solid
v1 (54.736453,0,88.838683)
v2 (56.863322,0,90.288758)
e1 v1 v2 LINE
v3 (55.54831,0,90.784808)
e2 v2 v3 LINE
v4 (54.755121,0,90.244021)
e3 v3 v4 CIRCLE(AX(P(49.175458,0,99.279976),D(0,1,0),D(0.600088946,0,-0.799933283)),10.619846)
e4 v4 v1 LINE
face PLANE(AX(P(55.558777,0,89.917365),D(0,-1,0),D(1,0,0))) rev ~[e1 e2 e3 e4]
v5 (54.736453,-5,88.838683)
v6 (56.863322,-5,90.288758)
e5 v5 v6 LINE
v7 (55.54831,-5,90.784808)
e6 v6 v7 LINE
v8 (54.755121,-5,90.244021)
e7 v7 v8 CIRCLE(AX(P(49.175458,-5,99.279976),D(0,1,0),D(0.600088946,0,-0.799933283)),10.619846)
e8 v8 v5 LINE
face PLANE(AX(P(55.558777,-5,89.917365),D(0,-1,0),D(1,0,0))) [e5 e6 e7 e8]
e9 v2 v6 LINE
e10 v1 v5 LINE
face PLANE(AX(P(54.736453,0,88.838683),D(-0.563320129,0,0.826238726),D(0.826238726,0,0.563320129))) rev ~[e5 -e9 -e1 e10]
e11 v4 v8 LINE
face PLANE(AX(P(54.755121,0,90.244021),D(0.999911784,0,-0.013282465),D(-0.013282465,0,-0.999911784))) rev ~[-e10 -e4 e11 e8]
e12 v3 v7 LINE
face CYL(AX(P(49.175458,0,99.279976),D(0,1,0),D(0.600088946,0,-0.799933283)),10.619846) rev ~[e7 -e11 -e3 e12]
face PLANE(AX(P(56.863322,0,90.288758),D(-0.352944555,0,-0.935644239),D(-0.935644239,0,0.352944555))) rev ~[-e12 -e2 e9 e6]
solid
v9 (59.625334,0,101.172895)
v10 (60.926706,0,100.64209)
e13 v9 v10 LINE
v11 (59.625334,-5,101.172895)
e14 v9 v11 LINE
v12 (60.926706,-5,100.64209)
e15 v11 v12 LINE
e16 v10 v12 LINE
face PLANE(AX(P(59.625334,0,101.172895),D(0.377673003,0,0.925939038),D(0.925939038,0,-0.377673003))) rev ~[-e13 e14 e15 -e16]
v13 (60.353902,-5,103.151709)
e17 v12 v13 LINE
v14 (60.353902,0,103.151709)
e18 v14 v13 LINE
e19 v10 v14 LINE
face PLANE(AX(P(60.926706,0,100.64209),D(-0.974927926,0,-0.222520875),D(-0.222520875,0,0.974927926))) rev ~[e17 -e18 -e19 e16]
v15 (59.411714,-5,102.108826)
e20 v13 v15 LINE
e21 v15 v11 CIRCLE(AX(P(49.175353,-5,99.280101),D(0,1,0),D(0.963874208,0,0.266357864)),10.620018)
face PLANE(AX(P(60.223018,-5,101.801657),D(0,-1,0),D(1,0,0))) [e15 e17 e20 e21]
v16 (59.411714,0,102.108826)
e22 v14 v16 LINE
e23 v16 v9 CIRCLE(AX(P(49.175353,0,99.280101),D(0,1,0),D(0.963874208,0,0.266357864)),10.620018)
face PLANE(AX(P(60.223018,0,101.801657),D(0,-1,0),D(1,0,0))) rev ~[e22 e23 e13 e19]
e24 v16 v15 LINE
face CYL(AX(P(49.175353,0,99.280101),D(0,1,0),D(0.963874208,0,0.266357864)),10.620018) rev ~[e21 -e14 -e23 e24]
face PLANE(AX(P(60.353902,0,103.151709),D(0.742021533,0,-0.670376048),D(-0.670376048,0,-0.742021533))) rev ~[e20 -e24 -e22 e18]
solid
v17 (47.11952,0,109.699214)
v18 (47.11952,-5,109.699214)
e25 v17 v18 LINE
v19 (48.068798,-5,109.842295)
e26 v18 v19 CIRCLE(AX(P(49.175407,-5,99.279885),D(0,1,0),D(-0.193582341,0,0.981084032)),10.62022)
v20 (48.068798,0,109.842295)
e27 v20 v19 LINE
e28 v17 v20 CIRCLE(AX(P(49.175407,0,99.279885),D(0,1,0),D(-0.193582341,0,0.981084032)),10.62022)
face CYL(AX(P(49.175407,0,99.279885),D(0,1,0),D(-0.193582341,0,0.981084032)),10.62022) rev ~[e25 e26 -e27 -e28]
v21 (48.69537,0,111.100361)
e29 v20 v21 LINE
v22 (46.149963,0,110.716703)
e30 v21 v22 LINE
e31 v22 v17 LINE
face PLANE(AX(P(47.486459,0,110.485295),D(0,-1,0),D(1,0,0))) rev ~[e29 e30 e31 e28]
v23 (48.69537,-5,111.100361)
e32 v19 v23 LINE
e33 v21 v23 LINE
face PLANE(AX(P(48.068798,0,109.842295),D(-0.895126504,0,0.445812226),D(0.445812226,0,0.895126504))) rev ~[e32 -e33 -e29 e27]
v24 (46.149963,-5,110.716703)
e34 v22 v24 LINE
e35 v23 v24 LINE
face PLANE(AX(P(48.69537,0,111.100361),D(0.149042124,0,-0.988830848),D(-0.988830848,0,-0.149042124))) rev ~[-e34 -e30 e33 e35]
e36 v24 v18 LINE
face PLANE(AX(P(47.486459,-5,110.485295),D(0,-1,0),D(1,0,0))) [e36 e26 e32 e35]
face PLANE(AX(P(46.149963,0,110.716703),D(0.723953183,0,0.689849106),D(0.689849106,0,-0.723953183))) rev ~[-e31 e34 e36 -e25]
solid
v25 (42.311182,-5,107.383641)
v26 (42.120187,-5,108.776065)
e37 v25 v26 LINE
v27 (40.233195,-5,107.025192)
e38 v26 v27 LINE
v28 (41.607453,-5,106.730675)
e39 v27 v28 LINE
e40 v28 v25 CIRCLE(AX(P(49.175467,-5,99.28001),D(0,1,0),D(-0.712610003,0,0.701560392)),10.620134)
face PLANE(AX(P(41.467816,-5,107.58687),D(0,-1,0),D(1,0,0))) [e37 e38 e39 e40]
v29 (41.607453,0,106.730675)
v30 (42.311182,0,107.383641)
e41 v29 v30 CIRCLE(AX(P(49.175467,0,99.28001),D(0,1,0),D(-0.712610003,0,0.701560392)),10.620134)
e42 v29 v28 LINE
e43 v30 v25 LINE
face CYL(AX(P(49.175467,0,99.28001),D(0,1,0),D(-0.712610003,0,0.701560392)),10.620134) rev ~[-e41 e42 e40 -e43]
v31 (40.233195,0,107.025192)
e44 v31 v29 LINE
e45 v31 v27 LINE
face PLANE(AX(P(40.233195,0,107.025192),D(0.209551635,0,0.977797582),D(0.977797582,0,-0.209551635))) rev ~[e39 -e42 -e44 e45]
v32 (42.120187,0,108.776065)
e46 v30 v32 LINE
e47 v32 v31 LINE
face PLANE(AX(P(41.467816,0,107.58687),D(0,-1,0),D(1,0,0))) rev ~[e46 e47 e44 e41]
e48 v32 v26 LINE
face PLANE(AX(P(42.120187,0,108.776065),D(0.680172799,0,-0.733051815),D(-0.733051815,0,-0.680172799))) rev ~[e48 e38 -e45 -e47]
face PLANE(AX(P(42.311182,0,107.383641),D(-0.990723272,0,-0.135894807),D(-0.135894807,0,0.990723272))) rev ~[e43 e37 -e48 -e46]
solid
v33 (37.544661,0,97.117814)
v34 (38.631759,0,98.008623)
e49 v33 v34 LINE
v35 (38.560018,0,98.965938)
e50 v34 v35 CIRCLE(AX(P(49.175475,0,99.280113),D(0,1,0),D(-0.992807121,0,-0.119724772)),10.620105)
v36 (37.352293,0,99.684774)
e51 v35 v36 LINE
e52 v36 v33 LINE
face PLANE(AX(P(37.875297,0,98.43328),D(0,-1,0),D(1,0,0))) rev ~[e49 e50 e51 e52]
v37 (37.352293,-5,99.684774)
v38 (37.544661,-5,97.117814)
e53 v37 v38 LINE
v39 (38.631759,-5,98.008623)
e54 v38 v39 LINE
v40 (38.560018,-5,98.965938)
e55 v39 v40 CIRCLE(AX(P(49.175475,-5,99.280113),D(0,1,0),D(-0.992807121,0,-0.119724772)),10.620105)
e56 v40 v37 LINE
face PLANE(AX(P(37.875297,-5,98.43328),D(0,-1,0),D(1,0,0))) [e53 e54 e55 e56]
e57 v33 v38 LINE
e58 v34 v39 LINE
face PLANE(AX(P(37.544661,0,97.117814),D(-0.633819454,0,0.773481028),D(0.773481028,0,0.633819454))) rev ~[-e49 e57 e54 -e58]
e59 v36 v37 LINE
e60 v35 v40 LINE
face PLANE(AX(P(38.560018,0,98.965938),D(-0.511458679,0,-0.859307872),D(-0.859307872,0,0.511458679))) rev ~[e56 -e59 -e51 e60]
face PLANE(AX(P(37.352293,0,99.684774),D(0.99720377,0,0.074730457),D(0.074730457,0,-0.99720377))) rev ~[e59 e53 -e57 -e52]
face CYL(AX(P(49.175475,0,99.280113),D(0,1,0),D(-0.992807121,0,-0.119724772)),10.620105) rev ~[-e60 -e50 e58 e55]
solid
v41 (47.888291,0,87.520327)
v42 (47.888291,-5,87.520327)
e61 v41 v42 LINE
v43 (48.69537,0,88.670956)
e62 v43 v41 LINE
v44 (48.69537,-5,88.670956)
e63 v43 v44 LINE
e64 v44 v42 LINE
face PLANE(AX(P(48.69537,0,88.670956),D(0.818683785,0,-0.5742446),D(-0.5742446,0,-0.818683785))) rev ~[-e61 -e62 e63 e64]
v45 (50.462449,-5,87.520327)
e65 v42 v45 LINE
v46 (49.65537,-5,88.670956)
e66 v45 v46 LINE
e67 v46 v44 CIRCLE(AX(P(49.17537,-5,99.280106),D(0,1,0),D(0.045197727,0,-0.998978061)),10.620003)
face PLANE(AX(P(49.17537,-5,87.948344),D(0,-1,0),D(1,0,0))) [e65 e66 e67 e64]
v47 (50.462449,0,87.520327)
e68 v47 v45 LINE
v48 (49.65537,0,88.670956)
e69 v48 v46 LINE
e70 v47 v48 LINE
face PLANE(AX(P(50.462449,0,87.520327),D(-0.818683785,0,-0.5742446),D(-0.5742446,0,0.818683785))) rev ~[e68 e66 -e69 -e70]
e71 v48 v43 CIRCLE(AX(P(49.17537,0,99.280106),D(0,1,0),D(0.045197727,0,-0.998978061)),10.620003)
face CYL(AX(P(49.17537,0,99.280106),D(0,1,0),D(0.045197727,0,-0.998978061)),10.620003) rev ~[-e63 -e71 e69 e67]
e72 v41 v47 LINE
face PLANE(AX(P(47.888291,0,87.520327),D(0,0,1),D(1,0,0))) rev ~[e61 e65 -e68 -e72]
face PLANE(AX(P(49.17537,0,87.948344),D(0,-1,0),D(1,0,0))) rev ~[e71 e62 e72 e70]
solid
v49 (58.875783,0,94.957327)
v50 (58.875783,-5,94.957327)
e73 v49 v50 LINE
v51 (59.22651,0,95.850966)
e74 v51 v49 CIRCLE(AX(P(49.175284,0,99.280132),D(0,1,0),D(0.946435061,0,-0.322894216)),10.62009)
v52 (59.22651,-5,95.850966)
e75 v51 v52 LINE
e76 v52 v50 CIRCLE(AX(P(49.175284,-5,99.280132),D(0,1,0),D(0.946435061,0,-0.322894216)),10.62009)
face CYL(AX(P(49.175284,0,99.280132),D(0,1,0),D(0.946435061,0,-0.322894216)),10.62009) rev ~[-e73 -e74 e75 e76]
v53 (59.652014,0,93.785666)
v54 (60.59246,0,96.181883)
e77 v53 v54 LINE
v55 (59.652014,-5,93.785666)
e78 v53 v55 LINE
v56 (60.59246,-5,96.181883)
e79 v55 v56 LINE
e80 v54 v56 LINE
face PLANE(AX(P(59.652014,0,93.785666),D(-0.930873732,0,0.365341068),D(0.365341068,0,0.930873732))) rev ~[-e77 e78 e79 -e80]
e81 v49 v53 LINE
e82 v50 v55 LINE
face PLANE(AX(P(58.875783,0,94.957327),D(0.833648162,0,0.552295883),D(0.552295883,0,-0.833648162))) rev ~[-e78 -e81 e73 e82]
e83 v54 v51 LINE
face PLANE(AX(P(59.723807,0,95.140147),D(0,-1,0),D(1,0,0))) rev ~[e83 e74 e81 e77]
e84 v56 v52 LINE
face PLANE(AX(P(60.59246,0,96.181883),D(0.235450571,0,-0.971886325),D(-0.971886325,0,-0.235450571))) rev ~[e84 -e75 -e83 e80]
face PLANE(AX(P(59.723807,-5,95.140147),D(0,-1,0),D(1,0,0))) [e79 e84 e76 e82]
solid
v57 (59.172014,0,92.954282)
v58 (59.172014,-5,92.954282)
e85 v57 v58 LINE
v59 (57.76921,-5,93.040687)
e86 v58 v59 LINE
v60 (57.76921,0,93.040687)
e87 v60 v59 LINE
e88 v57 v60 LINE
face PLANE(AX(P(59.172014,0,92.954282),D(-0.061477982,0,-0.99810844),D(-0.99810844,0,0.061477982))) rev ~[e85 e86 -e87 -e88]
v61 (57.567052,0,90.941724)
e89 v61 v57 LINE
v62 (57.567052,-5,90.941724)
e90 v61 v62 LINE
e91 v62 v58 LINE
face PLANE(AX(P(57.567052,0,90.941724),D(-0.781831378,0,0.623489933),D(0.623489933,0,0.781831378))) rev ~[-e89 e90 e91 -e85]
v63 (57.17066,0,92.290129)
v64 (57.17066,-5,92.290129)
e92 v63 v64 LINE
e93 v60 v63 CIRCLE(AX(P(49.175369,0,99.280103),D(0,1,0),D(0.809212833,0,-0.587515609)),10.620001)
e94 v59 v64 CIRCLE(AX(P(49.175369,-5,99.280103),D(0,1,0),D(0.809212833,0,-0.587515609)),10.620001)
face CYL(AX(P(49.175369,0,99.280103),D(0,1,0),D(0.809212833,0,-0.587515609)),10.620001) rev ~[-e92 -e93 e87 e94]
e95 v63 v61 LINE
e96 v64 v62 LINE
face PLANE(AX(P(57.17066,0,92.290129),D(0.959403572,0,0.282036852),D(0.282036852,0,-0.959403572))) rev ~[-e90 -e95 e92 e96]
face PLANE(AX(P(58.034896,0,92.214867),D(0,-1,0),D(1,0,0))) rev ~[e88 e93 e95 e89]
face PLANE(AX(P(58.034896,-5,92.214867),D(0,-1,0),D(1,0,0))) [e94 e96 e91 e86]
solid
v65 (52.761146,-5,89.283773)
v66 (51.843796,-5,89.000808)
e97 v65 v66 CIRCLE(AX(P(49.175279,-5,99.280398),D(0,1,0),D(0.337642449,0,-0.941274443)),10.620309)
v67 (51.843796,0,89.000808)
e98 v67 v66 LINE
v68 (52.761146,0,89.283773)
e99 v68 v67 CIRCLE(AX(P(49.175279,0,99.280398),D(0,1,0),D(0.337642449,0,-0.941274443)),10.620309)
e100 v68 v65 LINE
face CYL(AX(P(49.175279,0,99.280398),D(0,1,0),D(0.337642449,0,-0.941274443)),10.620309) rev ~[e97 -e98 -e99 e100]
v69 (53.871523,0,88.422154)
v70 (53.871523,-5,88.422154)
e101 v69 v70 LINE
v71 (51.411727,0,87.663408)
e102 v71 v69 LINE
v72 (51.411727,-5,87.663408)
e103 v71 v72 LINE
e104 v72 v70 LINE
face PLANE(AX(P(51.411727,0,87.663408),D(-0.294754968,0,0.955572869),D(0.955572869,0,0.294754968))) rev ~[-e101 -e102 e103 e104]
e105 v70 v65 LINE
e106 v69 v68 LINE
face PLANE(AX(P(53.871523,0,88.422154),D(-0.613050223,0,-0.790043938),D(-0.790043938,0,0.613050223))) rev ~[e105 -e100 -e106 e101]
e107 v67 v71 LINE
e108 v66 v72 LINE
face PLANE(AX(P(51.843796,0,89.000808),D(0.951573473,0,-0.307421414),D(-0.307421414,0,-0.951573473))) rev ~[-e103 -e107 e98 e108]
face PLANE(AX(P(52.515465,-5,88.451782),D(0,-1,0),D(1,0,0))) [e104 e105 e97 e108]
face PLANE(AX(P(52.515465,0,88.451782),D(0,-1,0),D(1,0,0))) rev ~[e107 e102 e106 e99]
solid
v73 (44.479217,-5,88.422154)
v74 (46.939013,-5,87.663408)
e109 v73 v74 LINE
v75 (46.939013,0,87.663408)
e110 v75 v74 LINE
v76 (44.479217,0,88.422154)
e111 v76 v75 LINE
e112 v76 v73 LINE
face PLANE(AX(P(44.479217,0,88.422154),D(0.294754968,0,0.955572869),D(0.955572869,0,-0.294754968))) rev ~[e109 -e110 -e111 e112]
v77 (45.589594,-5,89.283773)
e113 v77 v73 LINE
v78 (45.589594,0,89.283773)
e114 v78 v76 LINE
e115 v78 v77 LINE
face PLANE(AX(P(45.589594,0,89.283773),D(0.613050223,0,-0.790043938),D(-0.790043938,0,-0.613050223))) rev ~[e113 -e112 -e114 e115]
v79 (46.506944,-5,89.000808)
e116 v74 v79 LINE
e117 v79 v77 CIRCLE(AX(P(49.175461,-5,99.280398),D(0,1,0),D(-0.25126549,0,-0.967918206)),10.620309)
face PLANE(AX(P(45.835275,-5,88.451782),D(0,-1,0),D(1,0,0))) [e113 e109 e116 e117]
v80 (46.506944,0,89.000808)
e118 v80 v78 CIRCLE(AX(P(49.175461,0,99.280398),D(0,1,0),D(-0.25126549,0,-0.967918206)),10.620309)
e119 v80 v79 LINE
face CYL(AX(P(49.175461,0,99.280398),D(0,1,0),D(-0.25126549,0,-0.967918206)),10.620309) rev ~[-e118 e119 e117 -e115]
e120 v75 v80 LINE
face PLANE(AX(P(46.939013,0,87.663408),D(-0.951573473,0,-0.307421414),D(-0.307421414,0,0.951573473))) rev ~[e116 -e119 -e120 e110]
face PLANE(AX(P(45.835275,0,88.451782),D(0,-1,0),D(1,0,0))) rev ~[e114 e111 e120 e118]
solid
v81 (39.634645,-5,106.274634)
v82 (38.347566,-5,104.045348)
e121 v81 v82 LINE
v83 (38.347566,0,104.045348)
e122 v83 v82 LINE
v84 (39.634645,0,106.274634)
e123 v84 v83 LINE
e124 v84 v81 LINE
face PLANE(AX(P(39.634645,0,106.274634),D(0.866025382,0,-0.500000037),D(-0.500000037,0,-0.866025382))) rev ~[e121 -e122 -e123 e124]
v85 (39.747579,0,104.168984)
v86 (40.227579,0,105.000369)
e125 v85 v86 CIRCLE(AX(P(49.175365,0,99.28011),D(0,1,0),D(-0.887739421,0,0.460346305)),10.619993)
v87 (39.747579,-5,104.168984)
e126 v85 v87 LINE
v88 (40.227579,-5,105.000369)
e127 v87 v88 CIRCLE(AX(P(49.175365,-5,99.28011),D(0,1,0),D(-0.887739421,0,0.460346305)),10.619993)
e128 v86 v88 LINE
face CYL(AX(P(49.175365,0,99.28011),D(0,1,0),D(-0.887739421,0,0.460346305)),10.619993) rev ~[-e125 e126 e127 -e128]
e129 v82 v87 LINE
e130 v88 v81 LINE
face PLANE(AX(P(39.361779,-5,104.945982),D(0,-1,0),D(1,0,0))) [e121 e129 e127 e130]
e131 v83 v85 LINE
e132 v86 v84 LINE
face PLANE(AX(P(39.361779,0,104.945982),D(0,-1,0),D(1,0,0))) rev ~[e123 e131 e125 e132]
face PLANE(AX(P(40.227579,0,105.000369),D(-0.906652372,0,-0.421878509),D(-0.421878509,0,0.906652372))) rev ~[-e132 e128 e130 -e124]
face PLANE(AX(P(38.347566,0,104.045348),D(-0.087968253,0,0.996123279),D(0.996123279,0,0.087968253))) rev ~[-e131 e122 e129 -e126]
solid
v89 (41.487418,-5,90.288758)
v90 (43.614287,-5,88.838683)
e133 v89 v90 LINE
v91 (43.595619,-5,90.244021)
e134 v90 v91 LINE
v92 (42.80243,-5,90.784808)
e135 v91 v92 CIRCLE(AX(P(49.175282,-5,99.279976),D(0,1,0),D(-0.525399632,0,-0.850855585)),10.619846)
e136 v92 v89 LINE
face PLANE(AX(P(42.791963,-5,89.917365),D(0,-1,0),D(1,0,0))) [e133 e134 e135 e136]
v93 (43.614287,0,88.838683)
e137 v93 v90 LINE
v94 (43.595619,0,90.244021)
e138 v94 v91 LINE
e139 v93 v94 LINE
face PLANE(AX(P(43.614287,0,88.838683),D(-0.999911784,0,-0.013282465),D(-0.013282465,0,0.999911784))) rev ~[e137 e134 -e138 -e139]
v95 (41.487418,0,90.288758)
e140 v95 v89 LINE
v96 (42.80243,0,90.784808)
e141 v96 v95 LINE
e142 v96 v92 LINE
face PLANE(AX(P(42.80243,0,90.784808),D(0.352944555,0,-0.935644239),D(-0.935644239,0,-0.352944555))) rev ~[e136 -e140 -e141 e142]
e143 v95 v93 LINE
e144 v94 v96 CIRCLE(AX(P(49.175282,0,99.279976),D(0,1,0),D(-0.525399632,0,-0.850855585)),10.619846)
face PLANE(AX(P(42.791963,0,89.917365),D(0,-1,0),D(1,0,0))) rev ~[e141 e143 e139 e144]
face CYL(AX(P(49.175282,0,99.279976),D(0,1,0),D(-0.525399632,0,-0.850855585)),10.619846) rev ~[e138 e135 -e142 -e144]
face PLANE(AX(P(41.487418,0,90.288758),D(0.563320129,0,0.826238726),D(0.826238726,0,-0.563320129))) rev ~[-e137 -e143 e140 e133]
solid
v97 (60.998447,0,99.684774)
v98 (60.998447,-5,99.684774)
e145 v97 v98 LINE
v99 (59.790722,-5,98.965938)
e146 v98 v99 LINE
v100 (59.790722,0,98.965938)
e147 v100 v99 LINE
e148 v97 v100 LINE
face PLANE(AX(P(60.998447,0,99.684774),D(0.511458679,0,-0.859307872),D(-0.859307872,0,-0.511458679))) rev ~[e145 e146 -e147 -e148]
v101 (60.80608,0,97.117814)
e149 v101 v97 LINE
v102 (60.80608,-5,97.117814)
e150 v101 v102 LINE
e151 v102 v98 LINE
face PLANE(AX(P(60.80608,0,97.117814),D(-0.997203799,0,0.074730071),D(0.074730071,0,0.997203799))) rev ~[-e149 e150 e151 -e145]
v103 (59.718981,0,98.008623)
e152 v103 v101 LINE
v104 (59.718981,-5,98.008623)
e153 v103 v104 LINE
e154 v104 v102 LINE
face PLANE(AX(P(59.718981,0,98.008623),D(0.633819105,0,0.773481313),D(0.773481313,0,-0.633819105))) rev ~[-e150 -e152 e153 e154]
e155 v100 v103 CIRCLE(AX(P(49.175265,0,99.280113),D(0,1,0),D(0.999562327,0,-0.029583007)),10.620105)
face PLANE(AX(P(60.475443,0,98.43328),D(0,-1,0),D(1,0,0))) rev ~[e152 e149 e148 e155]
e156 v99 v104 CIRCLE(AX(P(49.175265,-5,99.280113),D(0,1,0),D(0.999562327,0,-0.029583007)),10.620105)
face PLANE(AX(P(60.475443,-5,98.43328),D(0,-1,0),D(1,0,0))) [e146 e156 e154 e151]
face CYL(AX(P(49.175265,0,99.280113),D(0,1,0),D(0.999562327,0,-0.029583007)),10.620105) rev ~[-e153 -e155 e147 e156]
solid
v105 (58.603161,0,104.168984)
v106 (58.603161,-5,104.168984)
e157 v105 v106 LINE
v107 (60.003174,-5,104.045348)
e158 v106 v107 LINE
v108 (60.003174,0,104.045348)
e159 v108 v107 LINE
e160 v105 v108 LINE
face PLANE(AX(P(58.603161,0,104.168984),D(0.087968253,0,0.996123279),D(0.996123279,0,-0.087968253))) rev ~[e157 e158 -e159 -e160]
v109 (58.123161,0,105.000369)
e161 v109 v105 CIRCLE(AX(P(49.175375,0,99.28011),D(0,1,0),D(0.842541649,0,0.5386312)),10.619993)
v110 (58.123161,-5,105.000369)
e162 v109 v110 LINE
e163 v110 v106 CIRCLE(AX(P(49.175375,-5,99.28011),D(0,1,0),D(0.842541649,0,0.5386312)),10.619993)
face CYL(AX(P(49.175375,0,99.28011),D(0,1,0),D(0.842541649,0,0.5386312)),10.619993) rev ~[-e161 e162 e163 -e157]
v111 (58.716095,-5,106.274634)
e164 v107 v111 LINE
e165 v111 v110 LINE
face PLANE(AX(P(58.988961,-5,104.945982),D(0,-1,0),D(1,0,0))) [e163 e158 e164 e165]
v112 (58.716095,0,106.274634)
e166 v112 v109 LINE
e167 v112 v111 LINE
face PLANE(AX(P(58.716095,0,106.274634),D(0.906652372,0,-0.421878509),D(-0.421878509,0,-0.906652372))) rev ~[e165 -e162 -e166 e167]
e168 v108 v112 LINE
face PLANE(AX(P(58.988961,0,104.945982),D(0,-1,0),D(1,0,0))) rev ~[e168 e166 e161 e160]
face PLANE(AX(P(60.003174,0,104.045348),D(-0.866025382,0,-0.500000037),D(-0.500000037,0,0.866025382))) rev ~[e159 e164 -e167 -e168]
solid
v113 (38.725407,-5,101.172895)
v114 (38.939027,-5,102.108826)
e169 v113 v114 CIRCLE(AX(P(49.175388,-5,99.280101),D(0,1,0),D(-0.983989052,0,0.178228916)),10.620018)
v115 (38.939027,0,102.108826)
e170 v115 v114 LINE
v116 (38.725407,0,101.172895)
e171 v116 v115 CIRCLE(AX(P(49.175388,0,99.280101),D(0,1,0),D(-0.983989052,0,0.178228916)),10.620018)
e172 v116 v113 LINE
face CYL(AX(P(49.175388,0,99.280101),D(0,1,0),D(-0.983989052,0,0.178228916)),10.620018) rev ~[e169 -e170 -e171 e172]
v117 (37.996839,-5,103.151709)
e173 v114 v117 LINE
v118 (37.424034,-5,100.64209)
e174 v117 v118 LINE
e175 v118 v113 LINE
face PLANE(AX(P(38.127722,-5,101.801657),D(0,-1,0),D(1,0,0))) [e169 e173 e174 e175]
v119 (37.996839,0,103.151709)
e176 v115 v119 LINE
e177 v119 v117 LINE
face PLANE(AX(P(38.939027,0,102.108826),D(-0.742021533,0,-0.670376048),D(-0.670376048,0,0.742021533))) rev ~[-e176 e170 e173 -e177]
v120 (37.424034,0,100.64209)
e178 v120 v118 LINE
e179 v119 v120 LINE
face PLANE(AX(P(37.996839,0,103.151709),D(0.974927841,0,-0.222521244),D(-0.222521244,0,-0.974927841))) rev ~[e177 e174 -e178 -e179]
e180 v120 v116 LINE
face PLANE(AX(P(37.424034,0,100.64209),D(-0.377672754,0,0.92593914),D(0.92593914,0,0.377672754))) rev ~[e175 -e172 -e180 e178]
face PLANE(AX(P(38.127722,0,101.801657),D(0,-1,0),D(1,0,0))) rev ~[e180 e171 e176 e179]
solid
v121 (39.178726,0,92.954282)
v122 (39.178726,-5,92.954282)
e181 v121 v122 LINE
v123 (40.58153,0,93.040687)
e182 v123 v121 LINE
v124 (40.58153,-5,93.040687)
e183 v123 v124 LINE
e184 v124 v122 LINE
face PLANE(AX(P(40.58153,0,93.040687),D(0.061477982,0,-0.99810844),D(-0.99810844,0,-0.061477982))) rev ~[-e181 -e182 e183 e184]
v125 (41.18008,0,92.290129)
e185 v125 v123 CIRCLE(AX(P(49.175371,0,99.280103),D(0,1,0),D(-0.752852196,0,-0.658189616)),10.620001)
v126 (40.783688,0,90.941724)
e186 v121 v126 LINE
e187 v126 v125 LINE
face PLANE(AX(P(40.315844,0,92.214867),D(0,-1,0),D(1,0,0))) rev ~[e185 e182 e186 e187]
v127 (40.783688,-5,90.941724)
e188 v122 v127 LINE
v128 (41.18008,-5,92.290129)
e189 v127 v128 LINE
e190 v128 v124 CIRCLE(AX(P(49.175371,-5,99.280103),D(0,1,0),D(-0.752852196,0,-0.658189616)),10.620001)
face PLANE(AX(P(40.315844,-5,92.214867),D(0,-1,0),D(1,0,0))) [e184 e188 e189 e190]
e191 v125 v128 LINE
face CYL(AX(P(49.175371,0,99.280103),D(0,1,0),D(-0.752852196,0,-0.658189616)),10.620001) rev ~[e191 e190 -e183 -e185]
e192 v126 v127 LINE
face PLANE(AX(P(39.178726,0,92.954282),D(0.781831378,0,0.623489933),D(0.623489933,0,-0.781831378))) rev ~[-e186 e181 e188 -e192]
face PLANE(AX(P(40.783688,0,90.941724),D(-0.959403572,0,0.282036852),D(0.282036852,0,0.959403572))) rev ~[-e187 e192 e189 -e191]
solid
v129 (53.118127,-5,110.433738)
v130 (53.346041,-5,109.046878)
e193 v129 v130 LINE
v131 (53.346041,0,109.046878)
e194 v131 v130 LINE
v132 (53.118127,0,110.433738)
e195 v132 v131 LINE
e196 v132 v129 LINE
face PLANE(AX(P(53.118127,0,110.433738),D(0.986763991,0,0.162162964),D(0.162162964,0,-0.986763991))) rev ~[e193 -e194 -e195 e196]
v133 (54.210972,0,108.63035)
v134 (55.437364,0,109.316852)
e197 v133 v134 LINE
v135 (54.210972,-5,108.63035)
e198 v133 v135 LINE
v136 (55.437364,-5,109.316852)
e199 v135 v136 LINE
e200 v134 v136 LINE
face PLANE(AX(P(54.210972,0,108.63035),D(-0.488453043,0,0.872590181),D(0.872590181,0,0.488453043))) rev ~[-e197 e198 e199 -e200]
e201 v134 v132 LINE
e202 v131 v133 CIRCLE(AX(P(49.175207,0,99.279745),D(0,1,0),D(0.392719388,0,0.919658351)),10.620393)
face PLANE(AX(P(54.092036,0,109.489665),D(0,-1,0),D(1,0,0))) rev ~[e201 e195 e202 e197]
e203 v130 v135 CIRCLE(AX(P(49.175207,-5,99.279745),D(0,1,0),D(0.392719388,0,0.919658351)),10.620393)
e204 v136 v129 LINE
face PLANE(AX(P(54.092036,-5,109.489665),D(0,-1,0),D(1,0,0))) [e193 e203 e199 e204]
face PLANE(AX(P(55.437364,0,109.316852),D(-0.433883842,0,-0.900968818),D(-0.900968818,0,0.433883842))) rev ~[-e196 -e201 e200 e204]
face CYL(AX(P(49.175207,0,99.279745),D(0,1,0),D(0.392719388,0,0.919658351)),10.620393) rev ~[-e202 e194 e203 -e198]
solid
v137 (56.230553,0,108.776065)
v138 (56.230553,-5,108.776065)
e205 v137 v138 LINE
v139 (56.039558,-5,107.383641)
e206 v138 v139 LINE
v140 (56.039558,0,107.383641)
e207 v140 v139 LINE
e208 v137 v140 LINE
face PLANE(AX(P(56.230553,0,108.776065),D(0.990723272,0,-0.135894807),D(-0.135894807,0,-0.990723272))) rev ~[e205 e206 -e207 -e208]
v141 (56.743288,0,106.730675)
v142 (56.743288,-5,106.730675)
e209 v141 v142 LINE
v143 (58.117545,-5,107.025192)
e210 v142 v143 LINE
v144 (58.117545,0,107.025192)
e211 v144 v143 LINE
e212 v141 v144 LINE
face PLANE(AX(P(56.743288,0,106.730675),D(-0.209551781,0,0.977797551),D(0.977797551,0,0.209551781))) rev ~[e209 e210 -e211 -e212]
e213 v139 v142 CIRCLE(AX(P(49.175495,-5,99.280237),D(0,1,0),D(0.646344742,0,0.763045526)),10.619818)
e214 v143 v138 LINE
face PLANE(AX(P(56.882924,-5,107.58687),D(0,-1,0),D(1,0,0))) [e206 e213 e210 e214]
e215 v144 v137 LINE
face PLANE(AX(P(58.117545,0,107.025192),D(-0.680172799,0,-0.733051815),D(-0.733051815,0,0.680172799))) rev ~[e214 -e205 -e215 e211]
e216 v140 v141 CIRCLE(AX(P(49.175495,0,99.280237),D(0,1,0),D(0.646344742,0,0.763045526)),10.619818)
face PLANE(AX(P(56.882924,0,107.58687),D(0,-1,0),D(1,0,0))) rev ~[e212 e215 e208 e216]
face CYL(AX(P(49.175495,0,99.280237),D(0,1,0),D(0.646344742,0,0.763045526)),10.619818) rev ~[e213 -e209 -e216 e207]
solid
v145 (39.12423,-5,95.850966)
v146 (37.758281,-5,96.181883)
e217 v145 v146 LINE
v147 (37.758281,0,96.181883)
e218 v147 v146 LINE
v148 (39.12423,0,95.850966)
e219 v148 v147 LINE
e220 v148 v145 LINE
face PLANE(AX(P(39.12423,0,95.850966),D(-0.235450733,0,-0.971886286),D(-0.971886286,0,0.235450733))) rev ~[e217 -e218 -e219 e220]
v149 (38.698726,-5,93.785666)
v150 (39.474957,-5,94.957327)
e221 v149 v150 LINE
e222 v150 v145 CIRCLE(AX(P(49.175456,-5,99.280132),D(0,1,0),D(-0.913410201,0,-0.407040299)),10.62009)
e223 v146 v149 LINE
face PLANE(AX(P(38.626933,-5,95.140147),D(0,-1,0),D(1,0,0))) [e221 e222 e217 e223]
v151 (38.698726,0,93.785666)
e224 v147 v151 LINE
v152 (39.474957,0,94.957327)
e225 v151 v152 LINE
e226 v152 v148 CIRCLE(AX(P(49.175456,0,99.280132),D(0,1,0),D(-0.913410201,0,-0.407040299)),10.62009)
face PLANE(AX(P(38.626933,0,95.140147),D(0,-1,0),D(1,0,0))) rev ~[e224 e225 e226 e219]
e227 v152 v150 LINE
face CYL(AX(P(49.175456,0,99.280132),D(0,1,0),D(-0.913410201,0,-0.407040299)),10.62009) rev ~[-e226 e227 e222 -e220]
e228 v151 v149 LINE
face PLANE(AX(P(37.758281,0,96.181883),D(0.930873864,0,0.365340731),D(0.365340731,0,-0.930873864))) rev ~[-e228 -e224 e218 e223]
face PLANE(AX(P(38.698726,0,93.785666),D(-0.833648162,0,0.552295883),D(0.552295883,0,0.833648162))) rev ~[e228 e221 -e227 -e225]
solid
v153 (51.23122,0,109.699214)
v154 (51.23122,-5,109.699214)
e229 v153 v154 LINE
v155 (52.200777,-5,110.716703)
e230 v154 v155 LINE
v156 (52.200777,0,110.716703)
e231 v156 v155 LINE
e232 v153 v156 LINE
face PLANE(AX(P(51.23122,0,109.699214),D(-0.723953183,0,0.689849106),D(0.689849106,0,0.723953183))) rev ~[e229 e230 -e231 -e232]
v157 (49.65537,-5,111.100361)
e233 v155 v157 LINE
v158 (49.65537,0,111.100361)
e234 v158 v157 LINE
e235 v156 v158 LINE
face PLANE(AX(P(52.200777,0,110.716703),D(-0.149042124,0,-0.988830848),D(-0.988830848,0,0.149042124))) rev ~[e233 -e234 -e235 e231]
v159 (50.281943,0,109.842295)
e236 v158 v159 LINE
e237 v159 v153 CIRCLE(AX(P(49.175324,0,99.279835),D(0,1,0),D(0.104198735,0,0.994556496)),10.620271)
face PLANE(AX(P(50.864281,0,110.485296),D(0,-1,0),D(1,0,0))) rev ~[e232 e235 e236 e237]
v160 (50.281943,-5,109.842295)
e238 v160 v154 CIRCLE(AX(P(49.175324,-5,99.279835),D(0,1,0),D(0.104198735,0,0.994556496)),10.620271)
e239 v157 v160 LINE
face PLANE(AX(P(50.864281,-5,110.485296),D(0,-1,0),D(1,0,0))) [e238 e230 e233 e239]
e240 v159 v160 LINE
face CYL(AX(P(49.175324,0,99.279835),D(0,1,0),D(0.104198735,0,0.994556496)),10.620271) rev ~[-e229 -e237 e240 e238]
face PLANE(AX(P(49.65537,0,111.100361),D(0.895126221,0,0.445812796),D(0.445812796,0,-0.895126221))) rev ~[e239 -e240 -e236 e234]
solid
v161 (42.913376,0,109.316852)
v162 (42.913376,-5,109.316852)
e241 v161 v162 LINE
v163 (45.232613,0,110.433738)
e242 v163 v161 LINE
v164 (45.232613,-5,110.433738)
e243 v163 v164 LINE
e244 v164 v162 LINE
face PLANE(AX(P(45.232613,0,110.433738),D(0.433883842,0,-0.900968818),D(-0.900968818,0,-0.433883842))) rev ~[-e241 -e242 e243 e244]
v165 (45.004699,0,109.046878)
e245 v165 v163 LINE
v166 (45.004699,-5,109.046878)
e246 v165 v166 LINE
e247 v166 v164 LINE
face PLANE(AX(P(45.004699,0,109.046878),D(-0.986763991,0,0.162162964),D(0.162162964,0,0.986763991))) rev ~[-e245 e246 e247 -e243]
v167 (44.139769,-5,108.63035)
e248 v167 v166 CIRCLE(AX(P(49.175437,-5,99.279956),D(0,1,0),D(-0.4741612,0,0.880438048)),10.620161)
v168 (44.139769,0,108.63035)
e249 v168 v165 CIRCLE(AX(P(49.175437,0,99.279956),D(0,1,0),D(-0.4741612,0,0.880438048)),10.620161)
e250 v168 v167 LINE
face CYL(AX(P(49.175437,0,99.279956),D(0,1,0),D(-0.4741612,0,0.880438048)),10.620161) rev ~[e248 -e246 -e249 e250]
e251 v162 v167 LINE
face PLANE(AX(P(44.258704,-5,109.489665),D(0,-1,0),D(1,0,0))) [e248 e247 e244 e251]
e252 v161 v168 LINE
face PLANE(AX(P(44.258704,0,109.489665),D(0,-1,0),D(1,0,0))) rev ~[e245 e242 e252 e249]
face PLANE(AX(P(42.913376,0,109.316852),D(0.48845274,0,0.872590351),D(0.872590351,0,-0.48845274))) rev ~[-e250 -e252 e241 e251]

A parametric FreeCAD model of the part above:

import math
import FreeCAD as App
import Part
import Sketcher
from FreeCAD import Vector

doc = App.newDocument("Part")
body = doc.addObject("PartDesign::Body", "Body")
body.AllowCompound = True

sketch1 = doc.addObject("Sketcher::SketchObject", "Sketch")
body.addObject(sketch1)
sketch1.AttachmentSupport = (doc.XZ_Plane, [""])
sketch1.MapMode = "FlatFace"
sketch1.addGeometry([
    Part.LineSegment(Vector(44.479217, 88.422154, 0), Vector(46.939013, 87.663408, 0)),
    Part.LineSegment(Vector(46.939013, 87.663408, 0), Vector(46.506944, 89.000808, 0)),
    Part.ArcOfCircle(Part.Circle(Vector(49.175461, 99.280398, 0), Vector(0, 0, 1), 10.620309), math.radians(-109.733304), math.radians(-104.55241)),
    Part.LineSegment(Vector(45.589594, 89.283773, 0), Vector(44.479217, 88.422154, 0)),
    Part.LineSegment(Vector(41.487418, 90.288758, 0), Vector(43.614287, 88.838683, 0)),
    Part.LineSegment(Vector(43.614287, 88.838683, 0), Vector(43.595619, 90.244021, 0)),
    Part.ArcOfCircle(Part.Circle(Vector(49.175282, 99.279976, 0), Vector(0, 0, 1), 10.619846), math.radians(-126.876268), math.radians(-121.69515)),
    Part.LineSegment(Vector(42.80243, 90.784808, 0), Vector(41.487418, 90.288758, 0)),
    Part.LineSegment(Vector(39.178726, 92.954282, 0), Vector(40.783688, 90.941724, 0)),
    Part.LineSegment(Vector(40.783688, 90.941724, 0), Vector(41.18008, 92.290129, 0)),
    Part.ArcOfCircle(Part.Circle(Vector(49.175371, 99.280103, 0), Vector(0, 0, 1), 10.620001), math.radians(-144.019094), math.radians(-138.838052)),
    Part.LineSegment(Vector(40.58153, 93.040687, 0), Vector(39.178726, 92.954282, 0)),
    Part.LineSegment(Vector(37.758281, 96.181883, 0), Vector(38.698726, 93.785666, 0)),
    Part.LineSegment(Vector(38.698726, 93.785666, 0), Vector(39.474957, 94.957327, 0)),
    Part.ArcOfCircle(Part.Circle(Vector(49.175456, 99.280132, 0), Vector(0, 0, 1), 10.62009), math.radians(-161.161955), math.radians(-155.980954)),
    Part.LineSegment(Vector(39.12423, 95.850966, 0), Vector(37.758281, 96.181883, 0)),
    Part.LineSegment(Vector(37.352293, 99.684774, 0), Vector(37.544661, 97.117814, 0)),
    Part.LineSegment(Vector(37.544661, 97.117814, 0), Vector(38.631759, 98.008623, 0)),
    Part.ArcOfCircle(Part.Circle(Vector(49.175475, 99.280113, 0), Vector(0, 0, 1), 10.620105), math.radians(-178.304771), math.radians(-173.123781)),
    Part.LineSegment(Vector(38.560018, 98.965938, 0), Vector(37.352293, 99.684774, 0)),
    Part.LineSegment(Vector(38.939027, 102.108826, 0), Vector(37.996839, 103.151709, 0)),
    Part.LineSegment(Vector(37.996839, 103.151709, 0), Vector(37.424034, 100.64209, 0)),
    Part.LineSegment(Vector(37.424034, 100.64209, 0), Vector(38.725407, 101.172895, 0)),
    Part.ArcOfCircle(Part.Circle(Vector(49.175388, 99.280101, 0), Vector(0, 0, 1), 10.620018), math.radians(164.552347), math.radians(169.733384)),
    Part.LineSegment(Vector(40.227579, 105.000369, 0), Vector(39.634645, 106.274634, 0)),
    Part.LineSegment(Vector(39.634645, 106.274634, 0), Vector(38.347566, 104.045348, 0)),
    Part.LineSegment(Vector(38.347566, 104.045348, 0), Vector(39.747579, 104.168984, 0)),
    Part.ArcOfCircle(Part.Circle(Vector(49.175365, 99.28011, 0), Vector(0, 0, 1), 10.619993), math.radians(147.409493), math.radians(152.590544)),
    Part.LineSegment(Vector(47.888291, 87.520327, 0), Vector(50.462449, 87.520327, 0)),
    Part.LineSegment(Vector(50.462449, 87.520327, 0), Vector(49.65537, 88.670956, 0)),
    Part.ArcOfCircle(Part.Circle(Vector(49.17537, 99.280106, 0), Vector(0, 0, 1), 10.620003), math.radians(-92.590522), math.radians(-87.409478)),
    Part.LineSegment(Vector(48.69537, 88.670956, 0), Vector(47.888291, 87.520327, 0)),
    Part.LineSegment(Vector(51.411727, 87.663408, 0), Vector(53.871523, 88.422154, 0)),
    Part.LineSegment(Vector(53.871523, 88.422154, 0), Vector(52.761146, 89.283773, 0)),
    Part.ArcOfCircle(Part.Circle(Vector(49.175279, 99.280398, 0), Vector(0, 0, 1), 10.620309), math.radians(-75.44759), math.radians(-70.266696)),
    Part.LineSegment(Vector(51.843796, 89.000808, 0), Vector(51.411727, 87.663408, 0)),
    Part.LineSegment(Vector(54.736453, 88.838683, 0), Vector(56.863322, 90.288758, 0)),
    Part.LineSegment(Vector(56.863322, 90.288758, 0), Vector(55.54831, 90.784808, 0)),
    Part.ArcOfCircle(Part.Circle(Vector(49.175458, 99.279976, 0), Vector(0, 0, 1), 10.619846), math.radians(-58.30485), math.radians(-53.123732)),
    Part.LineSegment(Vector(54.755121, 90.244021, 0), Vector(54.736453, 88.838683, 0)),
    Part.LineSegment(Vector(57.567052, 90.941724, 0), Vector(59.172014, 92.954282, 0)),
    Part.LineSegment(Vector(59.172014, 92.954282, 0), Vector(57.76921, 93.040687, 0)),
    Part.ArcOfCircle(Part.Circle(Vector(49.175369, 99.280103, 0), Vector(0, 0, 1), 10.620001), math.radians(-41.161948), math.radians(-35.980906)),
    Part.LineSegment(Vector(57.17066, 92.290129, 0), Vector(57.567052, 90.941724, 0)),
    Part.LineSegment(Vector(59.652014, 93.785666, 0), Vector(60.59246, 96.181883, 0)),
    Part.LineSegment(Vector(60.59246, 96.181883, 0), Vector(59.22651, 95.850966, 0)),
    Part.ArcOfCircle(Part.Circle(Vector(49.175284, 99.280132, 0), Vector(0, 0, 1), 10.62009), math.radians(-24.019046), math.radians(-18.838045)),
    Part.LineSegment(Vector(58.875783, 94.957327, 0), Vector(59.652014, 93.785666, 0)),
    Part.LineSegment(Vector(60.80608, 97.117814, 0), Vector(60.998447, 99.684774, 0)),
    Part.LineSegment(Vector(60.998447, 99.684774, 0), Vector(59.790722, 98.965938, 0)),
    Part.ArcOfCircle(Part.Circle(Vector(49.175265, 99.280113, 0), Vector(0, 0, 1), 10.620105), math.radians(-6.876219), math.radians(-1.695229)),
    Part.LineSegment(Vector(59.718981, 98.008623, 0), Vector(60.80608, 97.117814, 0)),
    Part.LineSegment(Vector(59.625334, 101.172895, 0), Vector(60.926706, 100.64209, 0)),
    Part.LineSegment(Vector(60.926706, 100.64209, 0), Vector(60.353902, 103.151709, 0)),
    Part.LineSegment(Vector(60.353902, 103.151709, 0), Vector(59.411714, 102.108826, 0)),
    Part.ArcOfCircle(Part.Circle(Vector(49.175353, 99.280101, 0), Vector(0, 0, 1), 10.620018), math.radians(10.266616), math.radians(15.447653)),
    Part.LineSegment(Vector(58.603161, 104.168984, 0), Vector(60.003174, 104.045348, 0)),
    Part.LineSegment(Vector(60.003174, 104.045348, 0), Vector(58.716095, 106.274634, 0)),
    Part.LineSegment(Vector(58.716095, 106.274634, 0), Vector(58.123161, 105.000369, 0)),
    Part.ArcOfCircle(Part.Circle(Vector(49.175375, 99.28011, 0), Vector(0, 0, 1), 10.619993), math.radians(27.409456), math.radians(32.590507)),
    Part.LineSegment(Vector(56.743288, 106.730675, 0), Vector(58.117545, 107.025192, 0)),
    Part.LineSegment(Vector(58.117545, 107.025192, 0), Vector(56.230553, 108.776065, 0)),
    Part.LineSegment(Vector(56.230553, 108.776065, 0), Vector(56.039558, 107.383641, 0)),
    Part.ArcOfCircle(Part.Circle(Vector(49.175495, 99.280237, 0), Vector(0, 0, 1), 10.619818), math.radians(44.55229), math.radians(49.733425)),
    Part.LineSegment(Vector(54.210972, 108.63035, 0), Vector(55.437364, 109.316852, 0)),
    Part.LineSegment(Vector(55.437364, 109.316852, 0), Vector(53.118127, 110.433738, 0)),
    Part.LineSegment(Vector(53.118127, 110.433738, 0), Vector(53.346041, 109.046878, 0)),
    Part.ArcOfCircle(Part.Circle(Vector(49.175207, 99.279745, 0), Vector(0, 0, 1), 10.620393), math.radians(61.69533), math.radians(66.876186)),
    Part.LineSegment(Vector(51.23122, 109.699214, 0), Vector(52.200777, 110.716703, 0)),
    Part.LineSegment(Vector(52.200777, 110.716703, 0), Vector(49.65537, 111.100361, 0)),
    Part.LineSegment(Vector(49.65537, 111.100361, 0), Vector(50.281943, 109.842295, 0)),
    Part.ArcOfCircle(Part.Circle(Vector(49.175324, 99.279835, 0), Vector(0, 0, 1), 10.620271), math.radians(78.838086), math.radians(84.018996)),
    Part.LineSegment(Vector(42.311182, 107.383641, 0), Vector(42.120187, 108.776065, 0)),
    Part.LineSegment(Vector(42.120187, 108.776065, 0), Vector(40.233195, 107.025192, 0)),
    Part.LineSegment(Vector(40.233195, 107.025192, 0), Vector(41.607453, 106.730675, 0)),
    Part.ArcOfCircle(Part.Circle(Vector(49.175467, 99.28001, 0), Vector(0, 0, 1), 10.620134), math.radians(130.266694), math.radians(135.447671)),
    Part.LineSegment(Vector(45.004699, 109.046878, 0), Vector(45.232613, 110.433738, 0)),
    Part.LineSegment(Vector(45.232613, 110.433738, 0), Vector(42.913376, 109.316852, 0)),
    Part.LineSegment(Vector(42.913376, 109.316852, 0), Vector(44.139769, 108.63035, 0)),
    Part.ArcOfCircle(Part.Circle(Vector(49.175437, 99.279956, 0), Vector(0, 0, 1), 10.620161), math.radians(113.123786), math.radians(118.30475)),
    Part.LineSegment(Vector(48.068798, 109.842295, 0), Vector(48.69537, 111.100361, 0)),
    Part.LineSegment(Vector(48.69537, 111.100361, 0), Vector(46.149963, 110.716703, 0)),
    Part.LineSegment(Vector(46.149963, 110.716703, 0), Vector(47.11952, 109.699214, 0)),
    Part.ArcOfCircle(Part.Circle(Vector(49.175407, 99.279885, 0), Vector(0, 0, 1), 10.62022), math.radians(95.98098), math.radians(101.16192)),
], False)
sketch1.addConstraint([
    Sketcher.Constraint("Coincident", 0, 2, 1, 1),
    Sketcher.Constraint("Coincident", 1, 2, 2, 2),
    Sketcher.Constraint("Coincident", 2, 1, 3, 1),
    Sketcher.Constraint("Coincident", 3, 2, 0, 1),
    Sketcher.Constraint("Coincident", 4, 2, 5, 1),
    Sketcher.Constraint("Coincident", 5, 2, 6, 2),
    Sketcher.Constraint("Coincident", 6, 1, 7, 1),
    Sketcher.Constraint("Coincident", 7, 2, 4, 1),
    Sketcher.Constraint("Coincident", 8, 2, 9, 1),
    Sketcher.Constraint("Coincident", 9, 2, 10, 2),
    Sketcher.Constraint("Coincident", 10, 1, 11, 1),
    Sketcher.Constraint("Coincident", 11, 2, 8, 1),
    Sketcher.Constraint("Coincident", 12, 2, 13, 1),
    Sketcher.Constraint("Coincident", 13, 2, 14, 2),
    Sketcher.Constraint("Coincident", 14, 1, 15, 1),
    Sketcher.Constraint("Coincident", 15, 2, 12, 1),
    Sketcher.Constraint("Coincident", 16, 2, 17, 1),
    Sketcher.Constraint("Coincident", 17, 2, 18, 2),
    Sketcher.Constraint("Coincident", 18, 1, 19, 1),
    Sketcher.Constraint("Coincident", 19, 2, 16, 1),
    Sketcher.Constraint("Coincident", 20, 2, 21, 1),
    Sketcher.Constraint("Coincident", 21, 2, 22, 1),
    Sketcher.Constraint("Coincident", 22, 2, 23, 2),
    Sketcher.Constraint("Coincident", 23, 1, 20, 1),
    Sketcher.Constraint("Coincident", 24, 2, 25, 1),
    Sketcher.Constraint("Coincident", 25, 2, 26, 1),
    Sketcher.Constraint("Coincident", 26, 2, 27, 2),
    Sketcher.Constraint("Coincident", 27, 1, 24, 1),
    Sketcher.Constraint("Coincident", 28, 2, 29, 1),
    Sketcher.Constraint("Coincident", 29, 2, 30, 2),
    Sketcher.Constraint("Coincident", 30, 1, 31, 1),
    Sketcher.Constraint("Coincident", 31, 2, 28, 1),
    Sketcher.Constraint("Coincident", 32, 2, 33, 1),
    Sketcher.Constraint("Coincident", 33, 2, 34, 2),
    Sketcher.Constraint("Coincident", 34, 1, 35, 1),
    Sketcher.Constraint("Coincident", 35, 2, 32, 1),
    Sketcher.Constraint("Coincident", 36, 2, 37, 1),
    Sketcher.Constraint("Coincident", 37, 2, 38, 2),
    Sketcher.Constraint("Coincident", 38, 1, 39, 1),
    Sketcher.Constraint("Coincident", 39, 2, 36, 1),
    Sketcher.Constraint("Coincident", 40, 2, 41, 1),
    Sketcher.Constraint("Coincident", 41, 2, 42, 2),
    Sketcher.Constraint("Coincident", 42, 1, 43, 1),
    Sketcher.Constraint("Coincident", 43, 2, 40, 1),
    Sketcher.Constraint("Coincident", 44, 2, 45, 1),
    Sketcher.Constraint("Coincident", 45, 2, 46, 2),
    Sketcher.Constraint("Coincident", 46, 1, 47, 1),
    Sketcher.Constraint("Coincident", 47, 2, 44, 1),
    Sketcher.Constraint("Coincident", 48, 2, 49, 1),
    Sketcher.Constraint("Coincident", 49, 2, 50, 2),
    Sketcher.Constraint("Coincident", 50, 1, 51, 1),
    Sketcher.Constraint("Coincident", 51, 2, 48, 1),
    Sketcher.Constraint("Coincident", 52, 2, 53, 1),
    Sketcher.Constraint("Coincident", 53, 2, 54, 1),
    Sketcher.Constraint("Coincident", 54, 2, 55, 2),
    Sketcher.Constraint("Coincident", 55, 1, 52, 1),
    Sketcher.Constraint("Coincident", 56, 2, 57, 1),
    Sketcher.Constraint("Coincident", 57, 2, 58, 1),
    Sketcher.Constraint("Coincident", 58, 2, 59, 2),
    Sketcher.Constraint("Coincident", 59, 1, 56, 1),
    Sketcher.Constraint("Coincident", 60, 2, 61, 1),
    Sketcher.Constraint("Coincident", 61, 2, 62, 1),
    Sketcher.Constraint("Coincident", 62, 2, 63, 2),
    Sketcher.Constraint("Coincident", 63, 1, 60, 1),
    Sketcher.Constraint("Coincident", 64, 2, 65, 1),
    Sketcher.Constraint("Coincident", 65, 2, 66, 1),
    Sketcher.Constraint("Coincident", 66, 2, 67, 2),
    Sketcher.Constraint("Coincident", 67, 1, 64, 1),
    Sketcher.Constraint("Coincident", 68, 2, 69, 1),
    Sketcher.Constraint("Coincident", 69, 2, 70, 1),
    Sketcher.Constraint("Coincident", 70, 2, 71, 2),
    Sketcher.Constraint("Coincident", 71, 1, 68, 1),
    Sketcher.Constraint("Coincident", 72, 2, 73, 1),
    Sketcher.Constraint("Coincident", 73, 2, 74, 1),
    Sketcher.Constraint("Coincident", 74, 2, 75, 2),
    Sketcher.Constraint("Coincident", 75, 1, 72, 1),
    Sketcher.Constraint("Coincident", 76, 2, 77, 1),
    Sketcher.Constraint("Coincident", 77, 2, 78, 1),
    Sketcher.Constraint("Coincident", 78, 2, 79, 2),
    Sketcher.Constraint("Coincident", 79, 1, 76, 1),
    Sketcher.Constraint("Coincident", 80, 2, 81, 1),
    Sketcher.Constraint("Coincident", 81, 2, 82, 1),
    Sketcher.Constraint("Coincident", 82, 2, 83, 2),
    Sketcher.Constraint("Coincident", 83, 1, 80, 1),
    Sketcher.Constraint("Horizontal", 28),
    Sketcher.Constraint("Coincident", 27, 3, 10, 3),
    Sketcher.Constraint("Coincident", 30, 3, 10, 3),
    Sketcher.Constraint("Coincident", 42, 3, 10, 3),
    Sketcher.Constraint("Coincident", 59, 3, 10, 3),
    Sketcher.Constraint("Radius", 10, 10.620001),
    Sketcher.Constraint("Radius", 42, 10.620001),
    Sketcher.Constraint("Radius", 2, 10.620309),
    Sketcher.Constraint("Radius", 14, 10.62009),
    Sketcher.Constraint("Radius", 34, 10.620309),
    Sketcher.Constraint("Radius", 46, 10.62009),
    Sketcher.Constraint("Radius", 71, 10.620271),
    Sketcher.Constraint("Radius", 79, 10.620161),
    Sketcher.Constraint("Radius", 83, 10.62022),
    Sketcher.Constraint("Radius", 6, 10.619846),
    Sketcher.Constraint("Radius", 18, 10.620105),
    Sketcher.Constraint("Radius", 23, 10.620018),
    Sketcher.Constraint("Radius", 27, 10.619993),
    Sketcher.Constraint("Radius", 30, 10.620003),
    Sketcher.Constraint("Radius", 38, 10.619846),
    Sketcher.Constraint("Radius", 50, 10.620105),
    Sketcher.Constraint("Radius", 55, 10.620018),
    Sketcher.Constraint("Radius", 59, 10.619993),
    Sketcher.Constraint("Radius", 63, 10.619818),
    Sketcher.Constraint("Radius", 67, 10.620393),
    Sketcher.Constraint("Radius", 75, 10.620134),
    Sketcher.Constraint("DistanceY", -1, 1, 2, 3, 99.280398),
    Sketcher.Constraint("DistanceY", -1, 1, 23, 3, 99.280101),
    Sketcher.Constraint("DistanceY", -1, 1, 34, 3, 99.280398),
    Sketcher.Constraint("DistanceY", -1, 1, 55, 3, 99.280101),
    Sketcher.Constraint("DistanceX", -1, 1, 53, 2, 60.353902),
    Sketcher.Constraint("DistanceX", -1, 1, 79, 1, 45.004699),
    Sketcher.Constraint("Distance", 0, 2.574158),
    Sketcher.Constraint("Distance", 1, 1.405462),
    Sketcher.Constraint("Distance", 5, 1.405462),
    Sketcher.Constraint("Distance", 7, 1.405462),
    Sketcher.Constraint("Distance", 8, 2.574159),
    Sketcher.Constraint("Distance", 9, 1.405462),
    Sketcher.Constraint("Distance", 12, 2.574159),
    Sketcher.Constraint("Distance", 15, 1.405462),
    Sketcher.Constraint("Distance", 17, 1.405462),
    Sketcher.Constraint("Distance", 20, 1.405462),
    Sketcher.Constraint("Distance", 21, 2.574159),
    Sketcher.Constraint("Distance", 24, 1.405461),
    Sketcher.Constraint("Distance", 26, 1.405462),
    Sketcher.Constraint("Distance", 32, 2.574158),
    Sketcher.Constraint("Distance", 35, 1.405462),
    Sketcher.Constraint("Distance", 37, 1.405462),
    Sketcher.Constraint("Distance", 39, 1.405462),
    Sketcher.Constraint("Distance", 40, 2.574159),
    Sketcher.Constraint("Distance", 43, 1.405462),
    Sketcher.Constraint("Distance", 44, 2.574159),
    Sketcher.Constraint("Distance", 52, 1.405462),
    Sketcher.Constraint("Distance", 53, 2.574158),
    Sketcher.Constraint("Distance", 54, 1.405462),
    Sketcher.Constraint("Distance", 56, 1.405462),
    Sketcher.Constraint("Distance", 58, 1.405461),
    Sketcher.Constraint("Distance", 60, 1.405462),
    Sketcher.Constraint("Distance", 61, 2.574159),
    Sketcher.Constraint("Distance", 64, 1.405462),
    Sketcher.Constraint("Distance", 65, 2.574159),
    Sketcher.Constraint("Distance", 69, 2.574158),
    Sketcher.Constraint("Distance", 73, 2.574159),
    Sketcher.Constraint("Distance", 77, 2.574159),
    Sketcher.Constraint("Distance", 80, 1.405462),
    Sketcher.Constraint("Distance", 81, 2.574158),
    Sketcher.Constraint("DistanceX", 28, 1, 28, 2, 2.574158),
    Sketcher.Constraint("DistanceX", -1, 1, 2, 3, 49.175461),
    Sketcher.Constraint("DistanceX", -1, 1, 10, 3, 49.175371),
    Sketcher.Constraint("DistanceY", -1, 1, 14, 3, 99.280132),
    Sketcher.Constraint("DistanceX", -1, 1, 23, 3, 49.175388),
    Sketcher.Constraint("DistanceY", -1, 1, 27, 3, 99.28011),
    Sketcher.Constraint("DistanceX", -1, 1, 34, 3, 49.175279),
    Sketcher.Constraint("DistanceY", -1, 1, 46, 3, 99.280132),
    Sketcher.Constraint("DistanceY", -1, 1, 75, 3, 99.28001),
    Sketcher.Constraint("DistanceY", -1, 1, 0, 2, 87.663408),
    Sketcher.Constraint("DistanceY", -1, 1, 1, 2, 89.000808),
    Sketcher.Constraint("DistanceX", -1, 1, 5, 2, 43.595619),
    Sketcher.Constraint("DistanceY", -1, 1, 5, 2, 90.244021),
    Sketcher.Constraint("DistanceX", -1, 1, 6, 1, 42.80243),
    Sketcher.Constraint("DistanceY", -1, 1, 6, 1, 90.784808),
    Sketcher.Constraint("DistanceY", -1, 1, 7, 2, 90.288758),
    Sketcher.Constraint("DistanceX", -1, 1, 9, 2, 41.18008),
    Sketcher.Constraint("DistanceX", -1, 1, 10, 1, 40.58153),
    Sketcher.Constraint("DistanceX", -1, 1, 14, 1, 39.12423),
    Sketcher.Constraint("DistanceX", -1, 1, 15, 2, 37.758281),
    Sketcher.Constraint("DistanceX", -1, 1, 16, 2, 37.544661),
    Sketcher.Constraint("DistanceX", -1, 1, 17, 2, 38.631759),
    Sketcher.Constraint("DistanceX", -1, 1, 18, 1, 38.560018),
    Sketcher.Constraint("DistanceY", -1, 1, 18, 1, 98.965938),
    Sketcher.Constraint("DistanceX", -1, 1, 20, 2, 37.996839),
    Sketcher.Constraint("DistanceY", -1, 1, 20, 2, 103.151709),
    Sketcher.Constraint("DistanceY", -1, 1, 21, 2, 100.64209),
    Sketcher.Constraint("DistanceY", -1, 1, 25, 2, 104.045348),
    Sketcher.Constraint("DistanceX", -1, 1, 26, 2, 39.747579),
    Sketcher.Constraint("DistanceX", -1, 1, 27, 1, 40.227579),
    Sketcher.Constraint("DistanceX", -1, 1, 28, 2, 50.462449),
    Sketcher.Constraint("DistanceX", -1, 1, 29, 2, 49.65537),
    Sketcher.Constraint("DistanceX", -1, 1, 30, 1, 48.69537),
    Sketcher.Constraint("DistanceY", -1, 1, 35, 2, 87.663408),
    Sketcher.Constraint("DistanceX", -1, 1, 36, 2, 56.863322),
    Sketcher.Constraint("DistanceY", -1, 1, 36, 2, 90.288758),
    Sketcher.Constraint("DistanceX", -1, 1, 37, 2, 55.54831),
    Sketcher.Constraint("DistanceX", -1, 1, 38, 1, 54.755121),
    Sketcher.Constraint("DistanceY", -1, 1, 38, 1, 90.244021),
    Sketcher.Constraint("DistanceX", -1, 1, 41, 2, 57.76921),
    Sketcher.Constraint("DistanceX", -1, 1, 42, 1, 57.17066),
    Sketcher.Constraint("DistanceX", -1, 1, 43, 2, 57.567052),
    Sketcher.Constraint("DistanceX", -1, 1, 44, 2, 60.59246),
    Sketcher.Constraint("DistanceX", -1, 1, 45, 2, 59.22651),
    Sketcher.Constraint("DistanceX", -1, 1, 50, 1, 59.718981),
    Sketcher.Constraint("DistanceX", -1, 1, 51, 2, 60.80608),
    Sketcher.Constraint("DistanceY", -1, 1, 52, 2, 100.64209),
    Sketcher.Constraint("DistanceY", -1, 1, 53, 2, 103.151709),
    Sketcher.Constraint("DistanceY", -1, 1, 56, 2, 104.045348),
    Sketcher.Constraint("DistanceX", -1, 1, 58, 2, 58.123161),
    Sketcher.Constraint("DistanceX", -1, 1, 59, 1, 58.603161),
    Sketcher.Constraint("DistanceY", -1, 1, 62, 2, 107.383641),
    Sketcher.Constraint("DistanceY", -1, 1, 64, 2, 109.316852),
    Sketcher.Constraint("DistanceY", -1, 1, 65, 2, 110.433738),
    Sketcher.Constraint("DistanceX", -1, 1, 66, 2, 53.346041),
    Sketcher.Constraint("DistanceY", -1, 1, 66, 2, 109.046878),
    Sketcher.Constraint("DistanceY", -1, 1, 67, 1, 108.63035),
    Sketcher.Constraint("DistanceX", -1, 1, 69, 2, 49.65537),
    Sketcher.Constraint("DistanceY", -1, 1, 69, 2, 111.100361),
    Sketcher.Constraint("DistanceX", -1, 1, 71, 1, 51.23122),
    Sketcher.Constraint("DistanceX", -1, 1, 75, 1, 42.311182),
    Sketcher.Constraint("DistanceY", -1, 1, 75, 1, 107.383641),
    Sketcher.Constraint("DistanceY", -1, 1, 76, 2, 110.433738),
    Sketcher.Constraint("DistanceY", -1, 1, 77, 2, 109.316852),
    Sketcher.Constraint("DistanceX", -1, 1, 78, 2, 44.139769),
    Sketcher.Constraint("DistanceY", -1, 1, 78, 2, 108.63035),
    Sketcher.Constraint("DistanceY", -1, 1, 79, 1, 109.046878),
    Sketcher.Constraint("DistanceX", -1, 1, 80, 2, 48.69537),
    Sketcher.Constraint("DistanceY", -1, 1, 80, 2, 111.100361),
    Sketcher.Constraint("DistanceX", -1, 1, 82, 2, 47.11952),
    Sketcher.Constraint("Distance", 3, 1.405462),
    Sketcher.Constraint("Distance", 4, 2.574158),
    Sketcher.Constraint("Distance", 11, 1.405463),
    Sketcher.Constraint("Distance", 13, 1.405462),
    Sketcher.Constraint("Distance", 16, 2.574158),
    Sketcher.Constraint("Distance", 19, 1.405463),
    Sketcher.Constraint("Distance", 22, 1.405463),
    Sketcher.Constraint("Distance", 25, 2.574158),
    Sketcher.Constraint("Distance", 29, 1.405462),
    Sketcher.Constraint("Distance", 33, 1.405462),
    Sketcher.Constraint("Distance", 36, 2.574158),
    Sketcher.Constraint("Distance", 41, 1.405463),
    Sketcher.Constraint("Distance", 45, 1.405463),
    Sketcher.Constraint("Distance", 47, 1.405462),
    Sketcher.Constraint("Distance", 48, 2.574158),
    Sketcher.Constraint("Distance", 49, 1.405463),
    Sketcher.Constraint("Distance", 51, 1.405463),
    Sketcher.Constraint("Distance", 57, 2.574158),
    Sketcher.Constraint("Distance", 62, 1.405462),
    Sketcher.Constraint("Distance", 66, 1.405463),
    Sketcher.Constraint("Distance", 68, 1.405462),
    Sketcher.Constraint("Distance", 70, 1.405462),
    Sketcher.Constraint("Distance", 72, 1.405462),
    Sketcher.Constraint("Distance", 74, 1.405463),
    Sketcher.Constraint("Distance", 76, 1.405463),
    Sketcher.Constraint("Distance", 82, 1.405462),
    Sketcher.Constraint("DistanceX", -1, 1, 14, 3, 49.175456),
    Sketcher.Constraint("DistanceX", -1, 1, 18, 3, 49.175475),
    Sketcher.Constraint("DistanceX", -1, 1, 46, 3, 49.175284),
    Sketcher.Constraint("DistanceX", -1, 1, 50, 3, 49.175265),
    Sketcher.Constraint("DistanceY", -1, 1, 50, 3, 99.280113),
    Sketcher.Constraint("DistanceX", -1, 1, 55, 3, 49.175353),
    Sketcher.Constraint("DistanceX", -1, 1, 63, 3, 49.175495),
    Sketcher.Constraint("DistanceY", -1, 1, 63, 3, 99.280237),
    Sketcher.Constraint("DistanceX", -1, 1, 71, 3, 49.175324),
    Sketcher.Constraint("DistanceY", -1, 1, 71, 3, 99.279835),
    Sketcher.Constraint("DistanceX", -1, 1, 83, 3, 49.175407),
    Sketcher.Constraint("DistanceY", -1, 1, 83, 3, 99.279885),
    Sketcher.Constraint("DistanceX", -1, 1, 2, 1, 45.589594),
    Sketcher.Constraint("DistanceX", -1, 1, 8, 2, 40.783688),
    Sketcher.Constraint("DistanceX", -1, 1, 12, 2, 38.698726),
    Sketcher.Constraint("DistanceX", -1, 1, 32, 2, 53.871523),
    Sketcher.Constraint("DistanceY", -1, 1, 32, 2, 88.422154),
    Sketcher.Constraint("DistanceX", -1, 1, 46, 1, 58.875783),
    Sketcher.Constraint("DistanceX", -1, 1, 48, 2, 60.998447),
    Sketcher.Constraint("DistanceX", -1, 1, 60, 2, 58.117545),
    Sketcher.Constraint("DistanceY", -1, 1, 60, 2, 107.025192),
    Sketcher.Constraint("DistanceX", -1, 1, 72, 2, 42.120187),
    Sketcher.Constraint("DistanceX", -1, 1, 73, 2, 40.233195),
])
pad1 = doc.addObject("PartDesign::Pad", "Pad")
body.addObject(pad1)
pad1.Profile = sketch1
pad1.Length = 5

doc.recompute()
